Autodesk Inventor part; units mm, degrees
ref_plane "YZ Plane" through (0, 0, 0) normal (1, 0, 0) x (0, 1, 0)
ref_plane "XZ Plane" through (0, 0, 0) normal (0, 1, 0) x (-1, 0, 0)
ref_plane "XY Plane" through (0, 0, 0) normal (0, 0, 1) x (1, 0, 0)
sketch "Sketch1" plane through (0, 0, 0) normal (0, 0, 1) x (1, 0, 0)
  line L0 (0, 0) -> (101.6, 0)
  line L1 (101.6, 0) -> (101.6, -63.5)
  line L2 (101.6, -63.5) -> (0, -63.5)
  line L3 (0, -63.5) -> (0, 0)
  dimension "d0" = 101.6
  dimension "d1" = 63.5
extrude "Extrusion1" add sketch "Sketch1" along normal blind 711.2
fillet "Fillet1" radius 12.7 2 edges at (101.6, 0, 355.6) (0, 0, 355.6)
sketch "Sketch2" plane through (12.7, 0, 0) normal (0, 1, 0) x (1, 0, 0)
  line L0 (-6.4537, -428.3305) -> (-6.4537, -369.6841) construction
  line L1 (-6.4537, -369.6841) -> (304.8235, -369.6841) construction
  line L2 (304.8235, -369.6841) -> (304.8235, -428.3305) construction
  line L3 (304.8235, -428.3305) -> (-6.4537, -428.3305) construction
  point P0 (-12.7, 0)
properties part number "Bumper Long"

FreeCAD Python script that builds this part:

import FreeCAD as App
import Part
import Sketcher

V = App.Vector
Q = App.Units.Quantity


def edges_at(feature, points):
    """Names of the edges that pass closest to the given points."""
    edges = feature.Shape.Edges
    near = lambda p: min(range(len(edges)), key=lambda i: edges[i].distToShape(Part.Vertex(*p))[0])
    return sorted({f"Edge{near(p) + 1}" for p in points})

doc = App.newDocument("Part")
body = doc.addObject("PartDesign::Body", "Body")

# Sketch on XY plane
sketch1 = body.newObject("Sketcher::SketchObject", "Sketch")
sketch1.AttachmentSupport = (doc.getObject("XY_Plane"), [""])
sketch1.MapMode = "FlatFace"
sketch1.addGeometry([
    Part.LineSegment(V(102, 0, 0), V(0, 0, 0)),
    Part.LineSegment(V(0, 0, 0), V(0, -64, 0)),
    Part.LineSegment(V(0, -64, 0), V(102, -64, 0)),
    Part.LineSegment(V(102, -64, 0), V(102, 0, 0)),
], False)
sketch1.addConstraint([
    Sketcher.Constraint("Coincident", 0, 2, 1, 1),
    Sketcher.Constraint("Coincident", 1, 2, 2, 1),
    Sketcher.Constraint("Coincident", 2, 2, 3, 1),
    Sketcher.Constraint("Coincident", 3, 2, 0, 1),
    Sketcher.Constraint("Horizontal", 0),
    Sketcher.Constraint("Vertical", 1),
    Sketcher.Constraint("Horizontal", 2),
    Sketcher.Constraint("Vertical", 3),
    Sketcher.Constraint("Coincident", 0, 2, -1, 1),
    Sketcher.Constraint("DistanceX", 0, 2, 0, 1, Q("4 in")),
    Sketcher.Constraint("DistanceY", 1, 2, 1, 1, Q("2.5 in")),
])
pad1 = body.newObject("PartDesign::Pad", "Pad")
pad1.Profile = sketch1
pad1.Length = Q("28 in")
doc.recompute()

fillet = body.newObject("PartDesign::Fillet", "Fillet")
fillet.Base = (pad1, edges_at(pad1, [(101.6, 0, 355.6), (0, 0, 355.6)]))
fillet.Radius = Q("0.5 in")

doc.recompute()
